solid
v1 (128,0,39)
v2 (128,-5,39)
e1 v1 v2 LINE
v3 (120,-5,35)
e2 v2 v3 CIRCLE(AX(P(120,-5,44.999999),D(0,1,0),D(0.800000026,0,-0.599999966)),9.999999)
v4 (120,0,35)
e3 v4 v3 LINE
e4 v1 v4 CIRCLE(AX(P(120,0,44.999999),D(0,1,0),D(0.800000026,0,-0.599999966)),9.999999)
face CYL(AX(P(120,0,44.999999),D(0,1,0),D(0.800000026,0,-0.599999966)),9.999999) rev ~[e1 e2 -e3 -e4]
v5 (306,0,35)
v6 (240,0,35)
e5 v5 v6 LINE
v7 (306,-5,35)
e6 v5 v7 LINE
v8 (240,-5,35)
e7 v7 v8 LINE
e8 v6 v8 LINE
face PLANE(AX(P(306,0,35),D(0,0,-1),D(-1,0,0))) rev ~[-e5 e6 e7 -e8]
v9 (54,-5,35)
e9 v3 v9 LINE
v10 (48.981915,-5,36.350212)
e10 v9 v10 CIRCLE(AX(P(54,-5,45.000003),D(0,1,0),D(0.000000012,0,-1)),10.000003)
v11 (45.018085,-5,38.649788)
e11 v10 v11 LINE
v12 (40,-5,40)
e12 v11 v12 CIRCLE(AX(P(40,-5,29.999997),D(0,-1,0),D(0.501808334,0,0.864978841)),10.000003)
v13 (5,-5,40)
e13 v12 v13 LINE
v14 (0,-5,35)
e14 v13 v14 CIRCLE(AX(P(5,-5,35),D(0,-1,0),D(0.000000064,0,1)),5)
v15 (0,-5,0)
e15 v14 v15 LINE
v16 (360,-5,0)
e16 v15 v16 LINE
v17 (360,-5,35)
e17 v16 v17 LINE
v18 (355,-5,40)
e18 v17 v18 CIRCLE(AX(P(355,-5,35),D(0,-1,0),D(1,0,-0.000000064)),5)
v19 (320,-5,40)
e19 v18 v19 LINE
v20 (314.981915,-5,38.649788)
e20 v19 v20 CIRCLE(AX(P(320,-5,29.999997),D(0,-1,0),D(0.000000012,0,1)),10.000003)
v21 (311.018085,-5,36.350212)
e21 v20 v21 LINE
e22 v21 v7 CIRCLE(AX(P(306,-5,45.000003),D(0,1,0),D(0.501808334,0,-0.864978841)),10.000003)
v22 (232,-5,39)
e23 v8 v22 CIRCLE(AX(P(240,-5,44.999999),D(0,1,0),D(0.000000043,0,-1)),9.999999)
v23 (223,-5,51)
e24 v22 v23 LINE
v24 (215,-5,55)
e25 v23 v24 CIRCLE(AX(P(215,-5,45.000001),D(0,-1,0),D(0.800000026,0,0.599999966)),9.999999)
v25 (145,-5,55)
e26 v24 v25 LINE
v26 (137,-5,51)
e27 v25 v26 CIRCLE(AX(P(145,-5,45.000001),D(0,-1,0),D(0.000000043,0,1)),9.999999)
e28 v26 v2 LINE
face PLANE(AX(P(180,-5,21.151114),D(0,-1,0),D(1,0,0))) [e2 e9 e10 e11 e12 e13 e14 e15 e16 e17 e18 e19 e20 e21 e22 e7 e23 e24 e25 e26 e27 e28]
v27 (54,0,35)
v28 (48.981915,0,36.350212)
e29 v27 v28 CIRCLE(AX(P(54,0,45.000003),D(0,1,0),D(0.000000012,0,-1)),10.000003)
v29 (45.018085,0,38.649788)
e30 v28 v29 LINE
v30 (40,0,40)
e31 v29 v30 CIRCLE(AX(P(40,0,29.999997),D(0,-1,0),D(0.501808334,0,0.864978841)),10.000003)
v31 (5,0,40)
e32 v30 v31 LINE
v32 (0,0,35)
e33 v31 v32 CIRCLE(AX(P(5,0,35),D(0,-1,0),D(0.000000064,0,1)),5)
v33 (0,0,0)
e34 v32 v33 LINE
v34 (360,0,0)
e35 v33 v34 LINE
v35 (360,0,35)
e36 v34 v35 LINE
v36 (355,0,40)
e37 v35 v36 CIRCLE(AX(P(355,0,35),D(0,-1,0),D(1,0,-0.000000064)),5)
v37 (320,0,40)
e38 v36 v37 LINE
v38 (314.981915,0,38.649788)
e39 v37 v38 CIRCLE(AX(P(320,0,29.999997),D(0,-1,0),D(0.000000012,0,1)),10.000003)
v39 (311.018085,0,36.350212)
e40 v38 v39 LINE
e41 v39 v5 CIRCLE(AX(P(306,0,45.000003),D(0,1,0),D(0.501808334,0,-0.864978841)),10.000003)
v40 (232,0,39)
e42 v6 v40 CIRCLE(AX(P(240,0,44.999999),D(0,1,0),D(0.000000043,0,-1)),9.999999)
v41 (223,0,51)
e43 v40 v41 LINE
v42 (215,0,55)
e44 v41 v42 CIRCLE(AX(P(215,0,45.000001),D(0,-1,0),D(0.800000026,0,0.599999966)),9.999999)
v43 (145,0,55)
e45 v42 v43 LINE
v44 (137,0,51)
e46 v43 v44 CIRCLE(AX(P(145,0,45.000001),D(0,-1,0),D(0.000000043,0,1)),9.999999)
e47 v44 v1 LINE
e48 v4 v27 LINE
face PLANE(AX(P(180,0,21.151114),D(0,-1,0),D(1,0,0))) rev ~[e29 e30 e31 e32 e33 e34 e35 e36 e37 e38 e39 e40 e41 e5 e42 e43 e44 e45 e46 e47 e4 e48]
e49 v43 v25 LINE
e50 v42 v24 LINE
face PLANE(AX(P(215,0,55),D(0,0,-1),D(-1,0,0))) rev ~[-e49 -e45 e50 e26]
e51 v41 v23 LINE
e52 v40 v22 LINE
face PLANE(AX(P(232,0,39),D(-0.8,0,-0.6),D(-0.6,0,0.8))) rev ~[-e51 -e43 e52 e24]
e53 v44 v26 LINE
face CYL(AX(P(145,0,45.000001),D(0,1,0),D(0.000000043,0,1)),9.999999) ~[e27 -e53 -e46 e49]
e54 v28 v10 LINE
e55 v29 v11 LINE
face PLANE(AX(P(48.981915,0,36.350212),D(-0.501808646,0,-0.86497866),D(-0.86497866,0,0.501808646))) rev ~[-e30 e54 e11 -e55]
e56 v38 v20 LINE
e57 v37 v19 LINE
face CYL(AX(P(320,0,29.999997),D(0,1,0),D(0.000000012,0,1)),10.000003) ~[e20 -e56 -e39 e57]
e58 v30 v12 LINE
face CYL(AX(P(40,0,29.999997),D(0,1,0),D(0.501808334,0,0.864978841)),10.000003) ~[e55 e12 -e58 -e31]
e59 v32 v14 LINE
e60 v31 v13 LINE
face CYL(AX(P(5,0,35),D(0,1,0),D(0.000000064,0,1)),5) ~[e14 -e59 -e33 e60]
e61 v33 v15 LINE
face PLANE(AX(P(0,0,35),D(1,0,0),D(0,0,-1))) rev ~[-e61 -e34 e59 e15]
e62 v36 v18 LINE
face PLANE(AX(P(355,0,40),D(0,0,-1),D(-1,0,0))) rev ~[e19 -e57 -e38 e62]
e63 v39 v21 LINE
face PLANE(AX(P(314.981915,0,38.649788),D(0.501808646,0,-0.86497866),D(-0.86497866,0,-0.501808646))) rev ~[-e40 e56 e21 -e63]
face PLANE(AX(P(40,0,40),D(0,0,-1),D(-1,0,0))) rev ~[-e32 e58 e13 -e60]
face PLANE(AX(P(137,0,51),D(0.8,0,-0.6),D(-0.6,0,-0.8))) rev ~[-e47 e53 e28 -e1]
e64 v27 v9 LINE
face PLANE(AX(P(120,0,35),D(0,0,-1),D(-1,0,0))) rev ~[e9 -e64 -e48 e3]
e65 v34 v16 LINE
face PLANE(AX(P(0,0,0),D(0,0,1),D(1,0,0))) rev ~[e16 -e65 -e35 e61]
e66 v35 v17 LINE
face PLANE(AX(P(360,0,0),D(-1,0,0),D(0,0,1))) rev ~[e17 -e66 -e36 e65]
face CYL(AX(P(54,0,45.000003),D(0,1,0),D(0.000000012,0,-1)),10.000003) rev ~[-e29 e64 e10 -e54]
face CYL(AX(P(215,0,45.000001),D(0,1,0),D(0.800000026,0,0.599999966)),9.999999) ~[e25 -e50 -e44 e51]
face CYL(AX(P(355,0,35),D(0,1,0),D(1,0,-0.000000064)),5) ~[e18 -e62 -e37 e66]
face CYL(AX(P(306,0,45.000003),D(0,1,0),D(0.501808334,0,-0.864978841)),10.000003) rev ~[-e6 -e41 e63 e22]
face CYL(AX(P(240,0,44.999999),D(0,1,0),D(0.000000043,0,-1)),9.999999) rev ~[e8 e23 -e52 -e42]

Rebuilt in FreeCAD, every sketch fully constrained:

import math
import FreeCAD as App
import Part
import Sketcher
from FreeCAD import Vector

doc = App.newDocument("Part")
body = doc.addObject("PartDesign::Body", "Body")

# Sketch on XZ plane
sketch1 = body.newObject("Sketcher::SketchObject", "Sketch")
sketch1.AttachmentSupport = (doc.getObject("XZ_Plane"), [""])
sketch1.MapMode = "FlatFace"
sketch1.addGeometry([
    Part.LineSegment(Vector(0, 35, 0), Vector(0, 0, 0)),  # 0
    Part.LineSegment(Vector(0, 0, 0), Vector(360, 0, 0)),  # 1
    Part.LineSegment(Vector(360, 0, 0), Vector(360, 35, 0)),  # 2
    Part.ArcOfCircle(Part.Circle(Vector(355, 35, 0), Vector(0, 0, 1), 5), math.radians(0), math.radians(90)),  # 3
    Part.LineSegment(Vector(355, 40, 0), Vector(320, 40, 0)),  # 4
    Part.ArcOfCircle(Part.Circle(Vector(320, 30, 0), Vector(0, 0, 1), 10), math.radians(90), math.radians(120)),  # 5
    Part.LineSegment(Vector(315, 38.6, 0), Vector(311, 36.4, 0)),  # 6
    Part.ArcOfCircle(Part.Circle(Vector(306, 45, 0), Vector(0, 0, 1), 10), math.radians(-90), math.radians(-60)),  # 7
    Part.LineSegment(Vector(306, 35, 0), Vector(240, 35, 0)),  # 8
    Part.ArcOfCircle(Part.Circle(Vector(240, 45, 0), Vector(0, 0, 1), 10), math.radians(-143), math.radians(-90)),  # 9
    Part.LineSegment(Vector(232, 39, 0), Vector(223, 51, 0)),  # 10
    Part.ArcOfCircle(Part.Circle(Vector(215, 45, 0), Vector(0, 0, 1), 10), math.radians(37), math.radians(90)),  # 11
    Part.LineSegment(Vector(215, 55, 0), Vector(145, 55, 0)),  # 12
    Part.ArcOfCircle(Part.Circle(Vector(145, 45, 0), Vector(0, 0, 1), 10), math.radians(90), math.radians(143)),  # 13
    Part.LineSegment(Vector(137, 51, 0), Vector(128, 39, 0)),  # 14
    Part.ArcOfCircle(Part.Circle(Vector(120, 45, 0), Vector(0, 0, 1), 10), math.radians(-90), math.radians(-37)),  # 15
    Part.LineSegment(Vector(120, 35, 0), Vector(54, 35, 0)),  # 16
    Part.ArcOfCircle(Part.Circle(Vector(54, 45, 0), Vector(0, 0, 1), 10), math.radians(-120), math.radians(-90)),  # 17
    Part.LineSegment(Vector(49, 36.4, 0), Vector(45, 38.6, 0)),  # 18
    Part.ArcOfCircle(Part.Circle(Vector(40, 30, 0), Vector(0, 0, 1), 10), math.radians(60), math.radians(90)),  # 19
    Part.LineSegment(Vector(40, 40, 0), Vector(5, 40, 0)),  # 20
    Part.ArcOfCircle(Part.Circle(Vector(5, 35, 0), Vector(0, 0, 1), 5), math.radians(90), math.radians(180)),  # 21
], False)
sketch1.addConstraint([
    Sketcher.Constraint("Coincident", 0, 2, 1, 1),
    Sketcher.Constraint("Coincident", 1, 2, 2, 1),
    Sketcher.Constraint("Tangent", 2, 2, 3, 1),
    Sketcher.Constraint("Tangent", 3, 2, 4, 1),
    Sketcher.Constraint("Tangent", 4, 2, 5, 1),
    Sketcher.Constraint("Tangent", 5, 2, 6, 1),
    Sketcher.Constraint("Tangent", 6, 2, 7, 2),
    Sketcher.Constraint("Tangent", 7, 1, 8, 1),
    Sketcher.Constraint("Tangent", 8, 2, 9, 2),
    Sketcher.Constraint("Tangent", 9, 1, 10, 1),
    Sketcher.Constraint("Tangent", 10, 2, 11, 1),
    Sketcher.Constraint("Tangent", 11, 2, 12, 1),
    Sketcher.Constraint("Tangent", 12, 2, 13, 1),
    Sketcher.Constraint("Tangent", 13, 2, 14, 1),
    Sketcher.Constraint("Tangent", 14, 2, 15, 2),
    Sketcher.Constraint("Tangent", 15, 1, 16, 1),
    Sketcher.Constraint("Tangent", 16, 2, 17, 2),
    Sketcher.Constraint("Tangent", 17, 1, 18, 1),
    Sketcher.Constraint("Tangent", 18, 2, 19, 1),
    Sketcher.Constraint("Tangent", 19, 2, 20, 1),
    Sketcher.Constraint("Tangent", 20, 2, 21, 1),
    Sketcher.Constraint("Tangent", 21, 2, 0, 1),
    Sketcher.Constraint("Vertical", 0),
    Sketcher.Constraint("Horizontal", 1),
    Sketcher.Constraint("Vertical", 2),
    Sketcher.Constraint("Horizontal", 4),
    Sketcher.Constraint("Horizontal", 8),
    Sketcher.Constraint("Horizontal", 12),
    Sketcher.Constraint("Horizontal", 16),
    Sketcher.Constraint("Horizontal", 20),
    Sketcher.Constraint("Coincident", 0, 2, -1, 1),
    Sketcher.Constraint("Equal", 5, 7),
    Sketcher.Constraint("Equal", 9, 11),
    Sketcher.Constraint("Equal", 11, 13),
    Sketcher.Constraint("Equal", 13, 15),
    Sketcher.Constraint("Equal", 7, 17),
    Sketcher.Constraint("Equal", 17, 19),
    Sketcher.Constraint("Equal", 3, 21),
    Sketcher.Constraint("Horizontal", 9, 3, 11, 3),
    Sketcher.Constraint("Horizontal", 13, 3, 15, 3),
    Sketcher.Constraint("Horizontal", 5, 3, 19, 3),
    Sketcher.Constraint("Horizontal", 2, 2, 7, 1),
    Sketcher.Constraint("Horizontal", 10, 2, 13, 2),
    Sketcher.Constraint("Horizontal", 6, 2, 17, 1),
    Sketcher.Constraint("Equal", 8, 16),
    Sketcher.Constraint("Equal", 4, 20),
    Sketcher.Constraint("Equal", 20, 0),
    Sketcher.Constraint("Radius", 3, 5.0),
    Sketcher.Constraint("Radius", 9, 9.999999),
    Sketcher.Constraint("DistanceX", 1, 1, 1, 2, 360.0),
    Sketcher.Constraint("DistanceX", 4, 2, 4, 1, 35.0),
    Sketcher.Constraint("DistanceX", 8, 2, 8, 1, 66.0),
    Sketcher.Constraint("DistanceX", 12, 2, 12, 1, 70.0),
    Sketcher.Constraint("Distance", 10, 15.0),
    Sketcher.Constraint("Radius", 5, 10.000003),
])
pad1 = body.newObject("PartDesign::Pad", "Pad")
pad1.Profile = sketch1
pad1.Length = 5

doc.recompute()
